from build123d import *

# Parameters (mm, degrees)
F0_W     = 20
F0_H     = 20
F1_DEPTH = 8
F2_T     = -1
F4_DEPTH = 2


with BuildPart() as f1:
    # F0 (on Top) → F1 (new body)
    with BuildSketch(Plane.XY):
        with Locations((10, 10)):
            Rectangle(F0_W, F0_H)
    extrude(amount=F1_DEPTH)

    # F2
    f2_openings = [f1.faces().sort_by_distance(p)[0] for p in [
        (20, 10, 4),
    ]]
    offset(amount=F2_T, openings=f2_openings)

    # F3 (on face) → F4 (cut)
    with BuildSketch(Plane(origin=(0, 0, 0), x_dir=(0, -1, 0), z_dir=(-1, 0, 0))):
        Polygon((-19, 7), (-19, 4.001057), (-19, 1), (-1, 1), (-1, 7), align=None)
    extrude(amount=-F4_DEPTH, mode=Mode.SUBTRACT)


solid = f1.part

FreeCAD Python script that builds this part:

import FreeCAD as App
import Part
import Sketcher
Q = App.Units.Quantity


def faces_at(feature, points):
    """Names of the faces that lie closest to the given points."""
    faces = feature.Shape.Faces
    near = lambda p: min(range(len(faces)), key=lambda i: faces[i].distToShape(Part.Vertex(*p))[0])
    return sorted({f"Face{near(p) + 1}" for p in points})


def add_polygon(sketch, points):
    """Adds a closed chain of lines whose ends are joined by coincident constraints."""
    first, n = sketch.GeometryCount, len(points)
    for a, b in zip(points, points[1:] + points[:1]):
        sketch.addGeometry(Part.LineSegment(App.Vector(*a, 0), App.Vector(*b, 0)), False)
    for i in range(n):
        sketch.addConstraint(Sketcher.Constraint("Coincident", first + i, 2, first + (i + 1) % n, 1))

doc = App.newDocument("Part")
params = doc.addObject("Spreadsheet::Sheet", "Params")
for row, (alias, value) in enumerate([
    ("sketch1_width", "20 mm"),
    ("pad1_length", "8 mm"),
    ("thickness_wall", "1 mm"),
    ("sketch2_width", "18 mm"),
    ("sketch2_height", "6 mm"),
    ("pocket1_length", "2 mm"),
], start=1):
    params.set(f"A{row}", alias)
    params.set(f"B{row}", "=" + value)
    params.setAlias(f"B{row}", alias)

body = doc.addObject("PartDesign::Body", "Body")

# Sketch on XY plane
sketch1 = body.newObject("Sketcher::SketchObject", "Sketch")
sketch1.AttachmentSupport = (doc.getObject("XY_Plane"), [""])
sketch1.MapMode = "FlatFace"
add_polygon(sketch1, [(0, 20), (0, 0), (20, 0), (20, 20)])  # lines 0-3
sketch1.addConstraint([
    Sketcher.Constraint("Vertical", 0),
    Sketcher.Constraint("Horizontal", 1),
    Sketcher.Constraint("Vertical", 2),
    Sketcher.Constraint("Horizontal", 3),
    Sketcher.Constraint("Coincident", 0, 2, -1, 1),
    Sketcher.Constraint("Equal", 3, 0),
    Sketcher.Constraint("DistanceX", 1, 1, 1, 2, Q("20 mm")),
])
sketch1.setExpression("Constraints[10]", "Params.sketch1_width")
pad1 = body.newObject("PartDesign::Pad", "Pad")
pad1.Profile = sketch1
pad1.setExpression("Length", "Params.pad1_length")
doc.recompute()

thickness = body.newObject("PartDesign::Thickness", "Thickness")
thickness.Base = (pad1, faces_at(pad1, [(20, 10, 4)]))
thickness.setExpression("Value", "Params.thickness_wall")
thickness.Reversed = True
thickness.Join = "Arc"

# Sketch on YZ plane
sketch2 = body.newObject("Sketcher::SketchObject", "Sketch001")
sketch2.AttachmentSupport = (doc.getObject("YZ_Plane"), [""])
sketch2.MapMode = "FlatFace"
add_polygon(sketch2, [(19, 7), (19, 1), (1, 1), (1, 7)])  # lines 0-3
sketch2.addConstraint([
    Sketcher.Constraint("Vertical", 0),
    Sketcher.Constraint("Horizontal", 1),
    Sketcher.Constraint("Vertical", 2),
    Sketcher.Constraint("Horizontal", 3),
    Sketcher.Constraint("DistanceX", 1, 2, 1, 1, Q("18 mm")),
    Sketcher.Constraint("DistanceY", 0, 2, 0, 1, Q("6 mm")),
    Sketcher.Constraint("DistanceX", -1, 1, 0, 2, Q("19 mm")),
    Sketcher.Constraint("DistanceY", -1, 1, 0, 2, Q("1 mm")),
])
sketch2.setExpression("Constraints[8]", "Params.sketch2_width")
sketch2.setExpression("Constraints[9]", "Params.sketch2_height")
pocket1 = body.newObject("PartDesign::Pocket", "Pocket")
pocket1.Profile = sketch2
pocket1.setExpression("Length", "Params.pocket1_length")
pocket1.Reversed = True

doc.recompute()
